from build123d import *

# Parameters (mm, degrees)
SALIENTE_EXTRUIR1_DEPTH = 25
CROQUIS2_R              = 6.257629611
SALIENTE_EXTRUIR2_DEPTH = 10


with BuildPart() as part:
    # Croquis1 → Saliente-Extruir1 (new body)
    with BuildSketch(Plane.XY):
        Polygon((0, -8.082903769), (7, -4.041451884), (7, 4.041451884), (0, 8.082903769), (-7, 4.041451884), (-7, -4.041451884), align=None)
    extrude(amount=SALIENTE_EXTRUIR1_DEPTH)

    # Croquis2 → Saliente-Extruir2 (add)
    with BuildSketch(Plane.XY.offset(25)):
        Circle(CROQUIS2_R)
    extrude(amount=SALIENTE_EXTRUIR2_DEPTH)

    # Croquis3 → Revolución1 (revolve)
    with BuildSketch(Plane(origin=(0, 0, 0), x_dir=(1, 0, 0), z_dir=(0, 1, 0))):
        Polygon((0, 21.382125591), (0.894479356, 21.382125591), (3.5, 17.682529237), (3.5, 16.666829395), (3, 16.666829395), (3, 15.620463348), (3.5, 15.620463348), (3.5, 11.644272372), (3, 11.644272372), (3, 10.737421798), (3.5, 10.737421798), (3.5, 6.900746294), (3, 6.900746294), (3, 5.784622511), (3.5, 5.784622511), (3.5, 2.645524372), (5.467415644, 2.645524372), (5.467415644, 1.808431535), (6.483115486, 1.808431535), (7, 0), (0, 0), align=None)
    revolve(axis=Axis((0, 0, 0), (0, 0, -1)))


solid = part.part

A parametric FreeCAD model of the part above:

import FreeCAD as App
import Part
import Sketcher

V = App.Vector
Q = App.Units.Quantity


def add_polygon(sketch, points):
    """Adds a closed chain of lines whose ends are joined by coincident constraints."""
    first, n = sketch.GeometryCount, len(points)
    for a, b in zip(points, points[1:] + points[:1]):
        sketch.addGeometry(Part.LineSegment(App.Vector(*a, 0), App.Vector(*b, 0)), False)
    for i in range(n):
        sketch.addConstraint(Sketcher.Constraint("Coincident", first + i, 2, first + (i + 1) % n, 1))

doc = App.newDocument("Part")
body = doc.addObject("PartDesign::Body", "Body")

sketch1 = body.newObject("Sketcher::SketchObject", "Sketch")
sketch1.AttachmentSupport = (doc.getObject("XY_Plane"), [""])
sketch1.MapMode = "FlatFace"
add_polygon(sketch1, [(0, -8), (7, -4), (7, 4), (0, 8), (-7, 4), (-7, -4)])
sketch1.addConstraint([
    Sketcher.Constraint("Vertical", 1),
    Sketcher.Constraint("Vertical", 4),
    Sketcher.Constraint("Symmetric", 0, 2, 3, 2, -1, 1),
    Sketcher.Constraint("Symmetric", 2, 2, 5, 2, -1, 1),
    Sketcher.Constraint("PointOnObject", 2, 2, -2),
    Sketcher.Constraint("Parallel", 2, 5),
    Sketcher.Constraint("Horizontal", 1, 2, 3, 2),
    Sketcher.Constraint("Angle", 0, Q("30 deg")),
    Sketcher.Constraint("DistanceX", -1, 1, 0, 2, Q("7 mm")),
    Sketcher.Constraint("DistanceY", 1, 1, 1, 2, Q("8.082904 mm")),
])
pad1 = body.newObject("PartDesign::Pad", "Pad")
pad1.Profile = sketch1
pad1.Length = 25

sketch2 = body.newObject("Sketcher::SketchObject", "Sketch001")
sketch2.AttachmentSupport = (doc.getObject("XY_Plane"), [""])
sketch2.MapMode = "FlatFace"
sketch2.AttachmentOffset = App.Placement(V(0, 0, 25), App.Rotation())
sketch2.addGeometry(Part.Circle(V(0, 0, 0), V(0, 0, 1), 6), False)
sketch2.addConstraint([
    Sketcher.Constraint("Coincident", 0, 3, -1, 1),
    Sketcher.Constraint("Diameter", 0, Q("12.515259 mm")),
])
pad2 = body.newObject("PartDesign::Pad", "Pad001")
pad2.Profile = sketch2
pad2.Length = 10

sketch3 = body.newObject("Sketcher::SketchObject", "Sketch002")
sketch3.AttachmentSupport = (doc.getObject("XZ_Plane"), [""])
sketch3.MapMode = "FlatFace"
add_polygon(sketch3, [(0.9, -21.4), (0, -21.4), (0, 0), (7, 0), (6.5, -1.8), (5.5, -1.8), (5.5, -2.6), (3.5, -2.6), (3.5, -5.8), (3, -5.8), (3, -6.9), (3.5, -6.9), (3.5, -10.7), (3, -10.7), (3, -11.6), (3.5, -11.6), (3.5, -15.6), (3, -15.6), (3, -16.7), (3.5, -16.7), (3.5, -17.7)])
sketch3.addConstraint([
    Sketcher.Constraint("Horizontal", 0),
    Sketcher.Constraint("Vertical", 1),
    Sketcher.Constraint("Horizontal", 2),
    Sketcher.Constraint("Horizontal", 4),
    Sketcher.Constraint("Vertical", 5),
    Sketcher.Constraint("Horizontal", 6),
    Sketcher.Constraint("Vertical", 7),
    Sketcher.Constraint("Horizontal", 8),
    Sketcher.Constraint("Vertical", 9),
    Sketcher.Constraint("Horizontal", 10),
    Sketcher.Constraint("Vertical", 11),
    Sketcher.Constraint("Horizontal", 12),
    Sketcher.Constraint("Vertical", 13),
    Sketcher.Constraint("Horizontal", 14),
    Sketcher.Constraint("Vertical", 15),
    Sketcher.Constraint("Horizontal", 16),
    Sketcher.Constraint("Vertical", 17),
    Sketcher.Constraint("Horizontal", 18),
    Sketcher.Constraint("Vertical", 19),
    Sketcher.Constraint("Coincident", 1, 2, -1, 1),
    Sketcher.Constraint("Vertical", 7, 2, 10, 2),
    Sketcher.Constraint("Vertical", 9, 2, 12, 2),
    Sketcher.Constraint("Vertical", 11, 2, 14, 2),
    Sketcher.Constraint("Vertical", 13, 2, 16, 2),
    Sketcher.Constraint("Vertical", 15, 2, 18, 2),
    Sketcher.Constraint("Equal", 4, 19),
    Sketcher.Constraint("DistanceX", 2, 1, 2, 2, Q("7 mm")),
    Sketcher.Constraint("DistanceX", 8, 2, 8, 1, Q("0.5 mm")),
    Sketcher.Constraint("DistanceX", -1, 1, 8, 2, Q("3 mm")),
    Sketcher.Constraint("DistanceX", 4, 2, 4, 1, Q("1.0157 mm")),
    Sketcher.Constraint("DistanceY", 7, 2, 7, 1, Q("3.139098 mm")),
    Sketcher.Constraint("DistanceX", 0, 2, 0, 1, Q("0.894479 mm")),
    Sketcher.Constraint("DistanceY", 13, 2, 13, 1, Q("0.906851 mm")),
    Sketcher.Constraint("DistanceY", 15, 2, 15, 1, Q("3.976191 mm")),
    Sketcher.Constraint("DistanceY", 0, 2, 5, 2, Q("18.736601 mm")),
    Sketcher.Constraint("DistanceY", 11, 2, 7, 2, Q("4.952799 mm")),
    Sketcher.Constraint("Distance", 3, Q("1.880849 mm")),
    Sketcher.Constraint("DistanceX", 6, 2, 6, 1, Q("1.967416 mm")),
    Sketcher.Constraint("DistanceY", 1, 1, 1, 2, Q("21.382126 mm")),
    Sketcher.Constraint("DistanceY", 9, 2, 9, 1, Q("1.116124 mm")),
    Sketcher.Constraint("DistanceY", 17, 2, 17, 1, Q("1.046366 mm")),
])
revolution = body.newObject("PartDesign::Revolution", "Revolution")
revolution.Profile = sketch3
revolution.ReferenceAxis = (sketch3, ["V_Axis"])
revolution.Angle = 360

doc.recompute()
